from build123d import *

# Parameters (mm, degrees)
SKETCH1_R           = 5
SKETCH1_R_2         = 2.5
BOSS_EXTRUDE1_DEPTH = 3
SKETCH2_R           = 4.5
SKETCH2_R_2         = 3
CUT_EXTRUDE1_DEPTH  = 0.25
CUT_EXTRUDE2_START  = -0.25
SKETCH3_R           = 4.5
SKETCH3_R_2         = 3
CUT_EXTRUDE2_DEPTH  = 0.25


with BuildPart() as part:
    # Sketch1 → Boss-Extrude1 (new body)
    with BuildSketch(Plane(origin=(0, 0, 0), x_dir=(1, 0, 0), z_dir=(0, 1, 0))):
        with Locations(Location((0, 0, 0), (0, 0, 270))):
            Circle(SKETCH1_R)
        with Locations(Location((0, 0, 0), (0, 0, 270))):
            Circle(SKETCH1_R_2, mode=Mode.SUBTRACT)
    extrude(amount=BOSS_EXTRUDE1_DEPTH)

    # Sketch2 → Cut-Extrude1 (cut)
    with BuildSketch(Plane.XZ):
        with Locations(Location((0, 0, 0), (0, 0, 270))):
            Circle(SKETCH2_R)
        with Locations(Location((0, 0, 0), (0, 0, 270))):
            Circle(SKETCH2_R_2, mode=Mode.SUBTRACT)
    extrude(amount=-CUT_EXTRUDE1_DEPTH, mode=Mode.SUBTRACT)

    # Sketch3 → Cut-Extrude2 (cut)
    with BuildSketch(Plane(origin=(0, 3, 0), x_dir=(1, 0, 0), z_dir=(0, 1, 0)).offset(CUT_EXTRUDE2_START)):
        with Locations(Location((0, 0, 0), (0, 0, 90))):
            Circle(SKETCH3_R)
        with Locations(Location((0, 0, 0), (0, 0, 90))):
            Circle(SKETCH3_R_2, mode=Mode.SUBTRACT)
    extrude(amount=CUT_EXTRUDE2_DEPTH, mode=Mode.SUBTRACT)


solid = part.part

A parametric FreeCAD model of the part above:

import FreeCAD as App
import Part
import Sketcher

V = App.Vector

doc = App.newDocument("Part")
body = doc.addObject("PartDesign::Body", "Body")

# Sketch on XZ plane
sketch1 = doc.addObject("Sketcher::SketchObject", "Sketch")
body.addObject(sketch1)
sketch1.AttachmentSupport = (doc.XZ_Plane, [""])
sketch1.MapMode = "FlatFace"
sketch1.addGeometry([
    Part.Circle(V(0, 0, 0), V(0, 0, 1), 5),
    Part.Circle(V(0, 0, 0), V(0, 0, 1), 2.5),
], False)
sketch1.addConstraint([
    Sketcher.Constraint("Coincident", 0, 3, -1, 1),
    Sketcher.Constraint("Coincident", 1, 3, -1, 1),
    Sketcher.Constraint("Diameter", 0, 10.0),
    Sketcher.Constraint("Diameter", 1, 5.0),
])
pad1 = doc.addObject("PartDesign::Pad", "Pad")
body.addObject(pad1)
pad1.Profile = sketch1
pad1.Length = 3
pad1.Reversed = True

# Sketch on XZ plane
sketch2 = doc.addObject("Sketcher::SketchObject", "Sketch001")
body.addObject(sketch2)
sketch2.AttachmentSupport = (doc.XZ_Plane, [""])
sketch2.MapMode = "FlatFace"
sketch2.addGeometry([
    Part.Circle(V(0, 0, 0), V(0, 0, 1), 4.5),
    Part.Circle(V(0, 0, 0), V(0, 0, 1), 3),
], False)
sketch2.addConstraint([
    Sketcher.Constraint("Coincident", 0, 3, -1, 1),
    Sketcher.Constraint("Coincident", 1, 3, -1, 1),
    Sketcher.Constraint("Diameter", 0, 9.0),
    Sketcher.Constraint("Diameter", 1, 6.0),
])
pocket1 = doc.addObject("PartDesign::Pocket", "Pocket")
body.addObject(pocket1)
pocket1.Profile = sketch2
pocket1.Length = 0.25

# Sketch on XZ plane
sketch3 = doc.addObject("Sketcher::SketchObject", "Sketch002")
body.addObject(sketch3)
sketch3.AttachmentSupport = (doc.XZ_Plane, [""])
sketch3.MapMode = "FlatFace"
sketch3.AttachmentOffset = App.Placement(V(0, 0, -2.75), App.Rotation())
sketch3.addGeometry([
    Part.Circle(V(0, 0, 0), V(0, 0, 1), 4.5),
    Part.Circle(V(0, 0, 0), V(0, 0, 1), 3),
], False)
sketch3.addConstraint([
    Sketcher.Constraint("Coincident", 0, 3, -1, 1),
    Sketcher.Constraint("Coincident", 1, 3, -1, 1),
    Sketcher.Constraint("Diameter", 0, 9.0),
    Sketcher.Constraint("Diameter", 1, 6.0),
])
pocket2 = doc.addObject("PartDesign::Pocket", "Pocket001")
body.addObject(pocket2)
pocket2.Profile = sketch3
pocket2.Length = 0.25

doc.recompute()
